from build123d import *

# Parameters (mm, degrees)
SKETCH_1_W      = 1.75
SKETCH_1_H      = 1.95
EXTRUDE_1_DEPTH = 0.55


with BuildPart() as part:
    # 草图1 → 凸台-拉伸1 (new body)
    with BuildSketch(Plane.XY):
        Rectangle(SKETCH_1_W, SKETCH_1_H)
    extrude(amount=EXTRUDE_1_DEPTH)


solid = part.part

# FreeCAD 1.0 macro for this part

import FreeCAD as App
import Part
import Sketcher
from FreeCAD import Vector
Q = App.Units.Quantity


def add_polygon(sketch, points):
    """Adds a closed chain of lines whose ends are joined by coincident constraints."""
    first, n = sketch.GeometryCount, len(points)
    for a, b in zip(points, points[1:] + points[:1]):
        sketch.addGeometry(Part.LineSegment(App.Vector(*a, 0), App.Vector(*b, 0)), False)
    for i in range(n):
        sketch.addConstraint(Sketcher.Constraint("Coincident", first + i, 2, first + (i + 1) % n, 1))

doc = App.newDocument("Part")
body = doc.addObject("PartDesign::Body", "Body")

# Sketch on XY plane
sketch1 = doc.addObject("Sketcher::SketchObject", "Sketch")
body.addObject(sketch1)
sketch1.AttachmentSupport = (doc.XY_Plane, [""])
sketch1.MapMode = "FlatFace"
add_polygon(sketch1, [(-0.875, 0.975), (-0.875, -0.975), (0.875, -0.975), (0.875, 0.975)])  # lines 0-3
sketch1.addConstraint([
    Sketcher.Constraint("Vertical", 0),
    Sketcher.Constraint("Horizontal", 1),
    Sketcher.Constraint("Vertical", 2),
    Sketcher.Constraint("Horizontal", 3),
    Sketcher.Constraint("Symmetric", 0, 2, 2, 2, -1, 1),
    Sketcher.Constraint("DistanceX", 1, 1, 1, 2, Q("1.75 mm")),
    Sketcher.Constraint("DistanceY", 0, 2, 0, 1, Q("1.95 mm")),
])
pad1 = doc.addObject("PartDesign::Pad", "Pad")
body.addObject(pad1)
pad1.Profile = sketch1
pad1.Length = 0.55

doc.recompute()
